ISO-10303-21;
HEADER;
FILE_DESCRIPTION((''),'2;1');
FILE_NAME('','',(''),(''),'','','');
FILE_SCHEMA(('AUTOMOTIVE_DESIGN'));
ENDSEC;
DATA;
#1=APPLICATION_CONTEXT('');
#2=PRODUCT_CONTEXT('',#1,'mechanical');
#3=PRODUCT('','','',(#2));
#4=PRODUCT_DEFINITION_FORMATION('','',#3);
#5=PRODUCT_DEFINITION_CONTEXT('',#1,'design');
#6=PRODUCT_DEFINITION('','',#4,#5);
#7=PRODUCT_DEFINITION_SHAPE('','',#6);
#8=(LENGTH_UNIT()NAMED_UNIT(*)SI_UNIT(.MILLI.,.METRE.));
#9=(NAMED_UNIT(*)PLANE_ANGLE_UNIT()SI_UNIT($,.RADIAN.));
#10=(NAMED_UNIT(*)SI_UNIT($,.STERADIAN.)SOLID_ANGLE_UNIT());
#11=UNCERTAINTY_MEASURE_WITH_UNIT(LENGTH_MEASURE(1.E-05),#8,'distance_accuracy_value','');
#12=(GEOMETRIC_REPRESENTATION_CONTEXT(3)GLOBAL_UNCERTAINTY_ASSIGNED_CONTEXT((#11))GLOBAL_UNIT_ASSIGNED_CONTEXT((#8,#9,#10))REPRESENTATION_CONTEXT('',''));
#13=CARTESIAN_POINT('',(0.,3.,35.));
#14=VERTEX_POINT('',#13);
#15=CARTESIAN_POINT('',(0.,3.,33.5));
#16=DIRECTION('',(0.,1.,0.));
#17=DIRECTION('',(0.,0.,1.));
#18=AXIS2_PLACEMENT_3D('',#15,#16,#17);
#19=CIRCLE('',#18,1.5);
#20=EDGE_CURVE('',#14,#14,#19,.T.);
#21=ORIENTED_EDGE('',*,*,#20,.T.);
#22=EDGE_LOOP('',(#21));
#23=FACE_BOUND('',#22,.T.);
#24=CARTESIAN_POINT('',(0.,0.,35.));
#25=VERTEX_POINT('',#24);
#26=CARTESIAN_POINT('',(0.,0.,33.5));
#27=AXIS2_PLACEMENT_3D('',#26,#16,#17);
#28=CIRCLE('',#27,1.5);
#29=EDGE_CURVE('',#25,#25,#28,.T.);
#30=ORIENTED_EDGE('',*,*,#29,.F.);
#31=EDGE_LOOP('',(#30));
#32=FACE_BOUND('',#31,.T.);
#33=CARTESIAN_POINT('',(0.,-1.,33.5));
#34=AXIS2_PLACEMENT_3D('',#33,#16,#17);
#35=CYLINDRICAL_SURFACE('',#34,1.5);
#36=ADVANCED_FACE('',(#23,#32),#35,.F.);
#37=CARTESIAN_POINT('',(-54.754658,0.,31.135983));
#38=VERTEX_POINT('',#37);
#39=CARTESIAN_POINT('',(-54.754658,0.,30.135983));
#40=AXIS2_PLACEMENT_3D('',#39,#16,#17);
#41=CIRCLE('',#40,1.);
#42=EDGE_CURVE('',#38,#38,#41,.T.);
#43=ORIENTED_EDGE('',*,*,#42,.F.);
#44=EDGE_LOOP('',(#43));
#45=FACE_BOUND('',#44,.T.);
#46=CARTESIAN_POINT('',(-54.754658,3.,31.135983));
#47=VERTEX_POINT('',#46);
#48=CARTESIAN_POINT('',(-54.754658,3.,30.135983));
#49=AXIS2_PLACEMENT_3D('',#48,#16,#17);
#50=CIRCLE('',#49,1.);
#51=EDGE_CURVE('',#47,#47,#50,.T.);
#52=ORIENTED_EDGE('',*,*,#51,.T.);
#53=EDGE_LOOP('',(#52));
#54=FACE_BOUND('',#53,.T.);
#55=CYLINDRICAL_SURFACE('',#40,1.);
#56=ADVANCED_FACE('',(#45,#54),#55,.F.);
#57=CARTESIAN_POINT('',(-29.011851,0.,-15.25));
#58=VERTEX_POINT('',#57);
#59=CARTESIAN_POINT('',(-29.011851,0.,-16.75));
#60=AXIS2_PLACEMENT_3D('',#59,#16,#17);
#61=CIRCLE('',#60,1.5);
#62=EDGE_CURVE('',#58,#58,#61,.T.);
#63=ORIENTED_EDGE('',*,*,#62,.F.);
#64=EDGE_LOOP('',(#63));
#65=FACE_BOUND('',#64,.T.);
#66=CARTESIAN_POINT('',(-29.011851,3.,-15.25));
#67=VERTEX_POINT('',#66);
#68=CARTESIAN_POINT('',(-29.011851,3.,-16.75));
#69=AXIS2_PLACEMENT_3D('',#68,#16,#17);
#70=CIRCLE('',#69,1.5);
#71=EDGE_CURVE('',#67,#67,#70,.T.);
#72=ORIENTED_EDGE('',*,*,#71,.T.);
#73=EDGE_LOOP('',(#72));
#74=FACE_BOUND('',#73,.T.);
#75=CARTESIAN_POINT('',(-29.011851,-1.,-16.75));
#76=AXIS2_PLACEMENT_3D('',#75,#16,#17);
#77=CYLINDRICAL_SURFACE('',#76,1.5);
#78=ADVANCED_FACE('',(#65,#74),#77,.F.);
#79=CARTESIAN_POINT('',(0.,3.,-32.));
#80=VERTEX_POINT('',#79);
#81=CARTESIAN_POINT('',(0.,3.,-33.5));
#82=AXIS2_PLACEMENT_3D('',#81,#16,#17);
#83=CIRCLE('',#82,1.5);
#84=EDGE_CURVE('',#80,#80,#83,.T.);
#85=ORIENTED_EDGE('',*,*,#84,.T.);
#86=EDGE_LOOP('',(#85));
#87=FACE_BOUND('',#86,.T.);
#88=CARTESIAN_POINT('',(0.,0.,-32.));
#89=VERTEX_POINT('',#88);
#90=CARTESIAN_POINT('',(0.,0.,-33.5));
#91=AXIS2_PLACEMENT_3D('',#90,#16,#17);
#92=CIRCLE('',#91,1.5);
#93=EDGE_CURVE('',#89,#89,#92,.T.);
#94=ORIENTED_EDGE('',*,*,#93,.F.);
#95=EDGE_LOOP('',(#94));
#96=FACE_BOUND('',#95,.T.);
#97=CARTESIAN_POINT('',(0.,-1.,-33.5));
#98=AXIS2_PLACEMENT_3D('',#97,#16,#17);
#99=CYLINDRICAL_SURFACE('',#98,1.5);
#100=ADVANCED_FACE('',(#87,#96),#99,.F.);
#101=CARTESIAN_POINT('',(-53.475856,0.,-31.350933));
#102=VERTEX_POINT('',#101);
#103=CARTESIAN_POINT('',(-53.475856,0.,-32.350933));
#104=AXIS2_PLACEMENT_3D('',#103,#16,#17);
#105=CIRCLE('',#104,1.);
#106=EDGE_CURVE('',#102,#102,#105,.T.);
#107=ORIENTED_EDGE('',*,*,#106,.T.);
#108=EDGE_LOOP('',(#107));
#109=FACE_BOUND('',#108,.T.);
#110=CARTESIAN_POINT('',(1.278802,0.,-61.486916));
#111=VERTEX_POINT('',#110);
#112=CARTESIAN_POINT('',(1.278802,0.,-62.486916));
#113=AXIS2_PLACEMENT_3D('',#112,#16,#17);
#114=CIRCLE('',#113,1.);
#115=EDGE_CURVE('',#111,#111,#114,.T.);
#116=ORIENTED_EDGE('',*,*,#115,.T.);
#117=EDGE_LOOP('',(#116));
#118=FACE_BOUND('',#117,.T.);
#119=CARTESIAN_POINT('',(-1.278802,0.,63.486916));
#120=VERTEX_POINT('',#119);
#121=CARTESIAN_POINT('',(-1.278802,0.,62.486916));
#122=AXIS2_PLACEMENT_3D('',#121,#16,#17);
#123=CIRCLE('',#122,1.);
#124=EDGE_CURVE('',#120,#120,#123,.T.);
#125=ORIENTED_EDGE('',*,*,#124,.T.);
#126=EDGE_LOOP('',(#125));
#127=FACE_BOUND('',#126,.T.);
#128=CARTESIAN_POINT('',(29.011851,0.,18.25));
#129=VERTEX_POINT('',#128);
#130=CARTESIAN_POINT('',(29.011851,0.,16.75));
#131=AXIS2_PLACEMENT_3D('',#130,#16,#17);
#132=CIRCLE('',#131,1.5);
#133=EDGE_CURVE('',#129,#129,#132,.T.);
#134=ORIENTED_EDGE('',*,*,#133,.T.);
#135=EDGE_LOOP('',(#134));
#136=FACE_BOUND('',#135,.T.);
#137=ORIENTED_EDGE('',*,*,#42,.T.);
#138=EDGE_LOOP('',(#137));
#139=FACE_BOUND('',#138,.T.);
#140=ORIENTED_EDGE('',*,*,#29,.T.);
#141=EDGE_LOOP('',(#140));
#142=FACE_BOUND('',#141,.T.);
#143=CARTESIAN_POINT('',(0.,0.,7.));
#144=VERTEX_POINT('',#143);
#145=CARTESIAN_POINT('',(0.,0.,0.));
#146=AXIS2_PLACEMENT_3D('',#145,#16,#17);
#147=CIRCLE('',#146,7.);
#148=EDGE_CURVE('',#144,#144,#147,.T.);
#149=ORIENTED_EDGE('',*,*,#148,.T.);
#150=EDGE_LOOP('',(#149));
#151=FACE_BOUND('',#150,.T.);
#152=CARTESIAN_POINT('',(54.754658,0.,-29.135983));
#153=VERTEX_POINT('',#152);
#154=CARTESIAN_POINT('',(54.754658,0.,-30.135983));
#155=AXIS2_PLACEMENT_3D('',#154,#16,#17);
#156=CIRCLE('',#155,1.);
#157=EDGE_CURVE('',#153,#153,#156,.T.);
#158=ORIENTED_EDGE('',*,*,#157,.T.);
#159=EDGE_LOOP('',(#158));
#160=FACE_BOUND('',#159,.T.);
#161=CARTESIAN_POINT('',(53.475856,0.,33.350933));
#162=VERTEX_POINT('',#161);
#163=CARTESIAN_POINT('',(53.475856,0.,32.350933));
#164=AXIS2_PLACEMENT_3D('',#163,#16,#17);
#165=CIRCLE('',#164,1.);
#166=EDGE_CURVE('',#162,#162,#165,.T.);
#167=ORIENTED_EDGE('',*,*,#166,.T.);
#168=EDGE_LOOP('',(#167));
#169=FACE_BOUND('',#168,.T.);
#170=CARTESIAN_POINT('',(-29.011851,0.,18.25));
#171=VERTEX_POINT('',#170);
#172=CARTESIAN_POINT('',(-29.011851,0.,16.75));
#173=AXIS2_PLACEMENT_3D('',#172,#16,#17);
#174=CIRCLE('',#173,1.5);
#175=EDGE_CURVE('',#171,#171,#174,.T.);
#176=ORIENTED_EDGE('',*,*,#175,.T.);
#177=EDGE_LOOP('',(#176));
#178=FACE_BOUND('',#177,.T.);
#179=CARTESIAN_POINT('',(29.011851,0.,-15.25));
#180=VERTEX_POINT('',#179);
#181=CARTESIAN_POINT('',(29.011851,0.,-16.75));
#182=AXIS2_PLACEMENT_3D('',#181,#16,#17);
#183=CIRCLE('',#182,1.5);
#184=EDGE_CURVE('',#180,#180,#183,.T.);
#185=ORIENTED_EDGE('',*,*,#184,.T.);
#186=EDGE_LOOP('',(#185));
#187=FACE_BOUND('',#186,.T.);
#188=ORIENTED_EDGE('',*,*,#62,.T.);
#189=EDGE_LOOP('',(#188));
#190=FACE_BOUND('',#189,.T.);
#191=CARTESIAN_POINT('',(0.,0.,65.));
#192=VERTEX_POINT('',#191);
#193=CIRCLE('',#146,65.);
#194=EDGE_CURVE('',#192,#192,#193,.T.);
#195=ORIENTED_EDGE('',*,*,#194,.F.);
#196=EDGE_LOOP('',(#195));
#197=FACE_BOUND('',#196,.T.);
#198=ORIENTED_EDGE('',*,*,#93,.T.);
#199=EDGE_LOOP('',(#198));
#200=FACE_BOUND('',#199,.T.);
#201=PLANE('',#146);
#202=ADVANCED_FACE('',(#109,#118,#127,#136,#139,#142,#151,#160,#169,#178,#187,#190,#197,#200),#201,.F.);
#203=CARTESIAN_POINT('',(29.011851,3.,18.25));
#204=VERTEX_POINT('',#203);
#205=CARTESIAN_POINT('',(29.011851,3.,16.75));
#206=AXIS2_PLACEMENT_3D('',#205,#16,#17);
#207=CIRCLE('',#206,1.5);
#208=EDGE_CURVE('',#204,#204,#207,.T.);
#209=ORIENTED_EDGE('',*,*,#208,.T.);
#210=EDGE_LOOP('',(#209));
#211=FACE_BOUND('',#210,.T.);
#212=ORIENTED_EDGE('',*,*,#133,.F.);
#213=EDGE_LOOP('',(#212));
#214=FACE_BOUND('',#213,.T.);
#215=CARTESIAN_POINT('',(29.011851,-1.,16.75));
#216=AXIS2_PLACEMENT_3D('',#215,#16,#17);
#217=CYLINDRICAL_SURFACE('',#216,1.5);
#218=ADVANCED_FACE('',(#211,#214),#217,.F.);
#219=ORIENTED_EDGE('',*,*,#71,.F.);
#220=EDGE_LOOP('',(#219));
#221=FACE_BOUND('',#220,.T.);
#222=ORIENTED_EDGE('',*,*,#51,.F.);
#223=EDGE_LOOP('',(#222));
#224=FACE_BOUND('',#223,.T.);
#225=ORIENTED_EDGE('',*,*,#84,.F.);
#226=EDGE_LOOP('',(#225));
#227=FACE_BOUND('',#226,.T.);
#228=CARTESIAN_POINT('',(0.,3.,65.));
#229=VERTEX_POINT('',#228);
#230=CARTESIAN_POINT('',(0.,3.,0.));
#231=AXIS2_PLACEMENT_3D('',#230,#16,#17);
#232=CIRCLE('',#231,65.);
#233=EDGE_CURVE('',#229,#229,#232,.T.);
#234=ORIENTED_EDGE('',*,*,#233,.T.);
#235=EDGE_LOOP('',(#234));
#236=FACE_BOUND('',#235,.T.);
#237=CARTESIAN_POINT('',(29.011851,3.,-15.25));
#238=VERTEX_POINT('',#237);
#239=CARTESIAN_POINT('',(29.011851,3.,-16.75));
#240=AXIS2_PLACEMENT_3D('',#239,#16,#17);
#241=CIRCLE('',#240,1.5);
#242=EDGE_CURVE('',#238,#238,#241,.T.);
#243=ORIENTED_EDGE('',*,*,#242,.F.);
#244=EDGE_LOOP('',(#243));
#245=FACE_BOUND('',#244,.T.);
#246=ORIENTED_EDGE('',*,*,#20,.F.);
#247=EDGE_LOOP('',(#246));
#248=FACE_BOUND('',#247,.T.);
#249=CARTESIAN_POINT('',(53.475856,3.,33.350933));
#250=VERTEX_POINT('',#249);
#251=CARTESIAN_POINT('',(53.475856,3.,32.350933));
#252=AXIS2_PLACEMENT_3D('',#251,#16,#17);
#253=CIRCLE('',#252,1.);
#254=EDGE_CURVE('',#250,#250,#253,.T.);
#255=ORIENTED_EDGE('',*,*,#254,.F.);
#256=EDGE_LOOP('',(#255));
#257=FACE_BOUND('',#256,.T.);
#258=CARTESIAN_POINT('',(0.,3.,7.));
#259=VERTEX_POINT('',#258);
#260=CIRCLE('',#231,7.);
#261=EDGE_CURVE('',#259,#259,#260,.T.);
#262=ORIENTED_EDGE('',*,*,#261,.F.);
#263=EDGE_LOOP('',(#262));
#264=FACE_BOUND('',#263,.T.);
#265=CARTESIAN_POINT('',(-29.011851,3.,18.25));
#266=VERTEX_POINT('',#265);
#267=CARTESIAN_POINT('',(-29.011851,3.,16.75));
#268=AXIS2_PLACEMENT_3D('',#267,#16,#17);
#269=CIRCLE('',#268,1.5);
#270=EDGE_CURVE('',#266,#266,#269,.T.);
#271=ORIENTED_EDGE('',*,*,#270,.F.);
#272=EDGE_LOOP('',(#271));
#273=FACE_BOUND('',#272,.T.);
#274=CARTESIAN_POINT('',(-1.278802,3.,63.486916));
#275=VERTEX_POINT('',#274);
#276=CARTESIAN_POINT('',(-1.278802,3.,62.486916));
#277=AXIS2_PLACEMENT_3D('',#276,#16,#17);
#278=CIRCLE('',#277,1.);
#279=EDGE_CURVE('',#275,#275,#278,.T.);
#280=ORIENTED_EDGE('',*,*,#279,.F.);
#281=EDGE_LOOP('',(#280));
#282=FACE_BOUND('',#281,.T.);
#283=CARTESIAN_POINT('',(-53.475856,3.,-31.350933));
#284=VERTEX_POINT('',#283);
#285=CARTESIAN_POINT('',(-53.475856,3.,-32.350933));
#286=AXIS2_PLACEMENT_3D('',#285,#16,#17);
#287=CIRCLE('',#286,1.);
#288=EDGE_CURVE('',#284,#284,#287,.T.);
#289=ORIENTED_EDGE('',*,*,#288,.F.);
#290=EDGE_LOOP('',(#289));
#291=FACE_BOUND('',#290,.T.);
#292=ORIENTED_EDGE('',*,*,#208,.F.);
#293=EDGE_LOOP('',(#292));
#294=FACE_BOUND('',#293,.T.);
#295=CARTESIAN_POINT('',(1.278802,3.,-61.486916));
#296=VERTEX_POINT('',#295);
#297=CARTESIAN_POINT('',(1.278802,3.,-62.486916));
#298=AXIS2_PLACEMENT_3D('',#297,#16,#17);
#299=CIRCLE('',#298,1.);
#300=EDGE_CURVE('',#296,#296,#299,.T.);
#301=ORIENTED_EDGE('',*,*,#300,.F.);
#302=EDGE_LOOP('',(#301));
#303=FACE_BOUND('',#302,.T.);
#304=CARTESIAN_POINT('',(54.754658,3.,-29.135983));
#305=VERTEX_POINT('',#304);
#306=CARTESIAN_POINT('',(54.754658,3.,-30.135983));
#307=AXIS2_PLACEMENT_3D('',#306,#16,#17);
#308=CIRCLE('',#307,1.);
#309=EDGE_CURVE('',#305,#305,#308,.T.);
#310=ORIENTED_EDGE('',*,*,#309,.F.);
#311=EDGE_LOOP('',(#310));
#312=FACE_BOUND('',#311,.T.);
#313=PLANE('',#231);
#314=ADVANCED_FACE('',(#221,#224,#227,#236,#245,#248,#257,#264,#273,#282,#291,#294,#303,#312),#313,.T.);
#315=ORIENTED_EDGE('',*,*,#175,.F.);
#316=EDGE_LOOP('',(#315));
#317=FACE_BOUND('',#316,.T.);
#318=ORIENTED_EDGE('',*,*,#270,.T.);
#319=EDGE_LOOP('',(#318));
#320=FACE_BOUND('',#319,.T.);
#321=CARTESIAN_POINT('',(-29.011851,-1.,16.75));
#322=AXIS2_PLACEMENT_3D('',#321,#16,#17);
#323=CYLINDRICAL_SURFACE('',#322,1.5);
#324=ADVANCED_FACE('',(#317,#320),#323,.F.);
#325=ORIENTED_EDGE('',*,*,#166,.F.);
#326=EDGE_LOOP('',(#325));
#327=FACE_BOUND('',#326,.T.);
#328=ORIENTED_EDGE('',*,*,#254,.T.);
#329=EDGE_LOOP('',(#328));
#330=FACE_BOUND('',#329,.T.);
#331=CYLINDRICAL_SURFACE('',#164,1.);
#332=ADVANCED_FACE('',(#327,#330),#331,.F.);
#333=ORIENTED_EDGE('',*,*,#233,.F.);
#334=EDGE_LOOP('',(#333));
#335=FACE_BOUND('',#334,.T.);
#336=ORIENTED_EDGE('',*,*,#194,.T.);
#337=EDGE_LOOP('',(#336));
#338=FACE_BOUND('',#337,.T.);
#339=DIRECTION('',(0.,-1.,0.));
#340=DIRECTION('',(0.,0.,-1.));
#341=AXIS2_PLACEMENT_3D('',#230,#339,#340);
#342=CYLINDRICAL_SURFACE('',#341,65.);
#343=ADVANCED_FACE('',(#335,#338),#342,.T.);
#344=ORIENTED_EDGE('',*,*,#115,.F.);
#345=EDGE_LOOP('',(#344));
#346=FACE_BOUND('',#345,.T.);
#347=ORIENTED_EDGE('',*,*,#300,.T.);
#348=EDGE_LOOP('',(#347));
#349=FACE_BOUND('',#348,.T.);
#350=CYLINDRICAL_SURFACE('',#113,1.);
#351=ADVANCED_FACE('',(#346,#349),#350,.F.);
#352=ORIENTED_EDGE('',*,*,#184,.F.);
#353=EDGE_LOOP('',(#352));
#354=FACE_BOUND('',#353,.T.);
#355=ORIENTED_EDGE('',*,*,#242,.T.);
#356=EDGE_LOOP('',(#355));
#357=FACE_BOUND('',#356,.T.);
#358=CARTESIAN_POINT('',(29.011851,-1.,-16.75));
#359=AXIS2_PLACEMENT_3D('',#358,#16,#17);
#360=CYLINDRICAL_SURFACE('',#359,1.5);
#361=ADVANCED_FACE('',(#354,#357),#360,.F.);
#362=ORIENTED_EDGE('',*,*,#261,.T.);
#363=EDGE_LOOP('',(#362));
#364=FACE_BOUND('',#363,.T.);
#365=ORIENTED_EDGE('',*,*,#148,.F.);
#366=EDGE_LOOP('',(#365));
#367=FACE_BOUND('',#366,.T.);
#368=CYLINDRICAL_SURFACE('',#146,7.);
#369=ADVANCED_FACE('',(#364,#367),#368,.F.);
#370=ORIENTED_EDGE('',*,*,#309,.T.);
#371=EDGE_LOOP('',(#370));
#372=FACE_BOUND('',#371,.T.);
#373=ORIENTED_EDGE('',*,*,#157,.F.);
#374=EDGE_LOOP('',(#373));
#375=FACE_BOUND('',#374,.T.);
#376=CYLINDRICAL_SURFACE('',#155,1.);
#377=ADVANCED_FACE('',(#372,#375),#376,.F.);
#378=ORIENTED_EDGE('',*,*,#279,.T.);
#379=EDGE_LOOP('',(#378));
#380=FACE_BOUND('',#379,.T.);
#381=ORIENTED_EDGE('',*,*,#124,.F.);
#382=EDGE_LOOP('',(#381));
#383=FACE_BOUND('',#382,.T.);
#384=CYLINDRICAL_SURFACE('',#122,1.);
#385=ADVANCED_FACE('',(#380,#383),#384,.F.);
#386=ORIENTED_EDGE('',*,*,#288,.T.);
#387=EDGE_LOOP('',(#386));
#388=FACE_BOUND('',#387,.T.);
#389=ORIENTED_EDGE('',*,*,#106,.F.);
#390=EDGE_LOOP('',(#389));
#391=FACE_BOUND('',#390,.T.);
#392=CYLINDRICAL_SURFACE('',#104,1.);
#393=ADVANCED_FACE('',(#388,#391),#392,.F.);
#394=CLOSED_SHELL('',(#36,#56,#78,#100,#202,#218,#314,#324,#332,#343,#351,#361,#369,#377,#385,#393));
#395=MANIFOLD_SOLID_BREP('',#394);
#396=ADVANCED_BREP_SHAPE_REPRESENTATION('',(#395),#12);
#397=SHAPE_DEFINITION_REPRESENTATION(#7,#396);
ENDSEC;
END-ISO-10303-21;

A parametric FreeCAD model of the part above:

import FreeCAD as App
import Part
import Sketcher
from FreeCAD import Vector
Q = App.Units.Quantity

doc = App.newDocument("Part")
body = doc.addObject("PartDesign::Body", "Body")

# Sketch on XZ plane
sketch1 = doc.addObject("Sketcher::SketchObject", "Sketch")
body.addObject(sketch1)
sketch1.AttachmentSupport = (doc.XZ_Plane, [""])
sketch1.MapMode = "FlatFace"
sketch1.addGeometry(Part.Circle(Vector(0, 0, 0), Vector(0, 0, 1), 65), False)
sketch1.addConstraint(Sketcher.Constraint("Coincident", 0, 3, -1, 1))
sketch1.addConstraint(Sketcher.Constraint("Diameter", 0, Q("130 mm")))
pad1 = doc.addObject("PartDesign::Pad", "Pad")
body.addObject(pad1)
pad1.Profile = sketch1
pad1.Length = 3
pad1.Reversed = True

# Sketch on XZ plane
sketch2 = doc.addObject("Sketcher::SketchObject", "Sketch001")
body.addObject(sketch2)
sketch2.AttachmentSupport = (doc.XZ_Plane, [""])
sketch2.MapMode = "FlatFace"
sketch2.AttachmentOffset = App.Placement(Vector(0, 0, -3), App.Rotation())
sketch2.addGeometry(Part.Circle(Vector(-53.5, -32.4, 0), Vector(0, 0, 1), 1), False)
sketch2.addGeometry(Part.Circle(Vector(-54.8, 30.1, 0), Vector(0, 0, 1), 1), False)
sketch2.addGeometry(Part.Circle(Vector(-1.3, 62.5, 0), Vector(0, 0, 1), 1), False)
sketch2.addGeometry(Part.Circle(Vector(53.5, 32.4, 0), Vector(0, 0, 1), 1), False)
sketch2.addGeometry(Part.Circle(Vector(54.8, -30.1, 0), Vector(0, 0, 1), 1), False)
sketch2.addGeometry(Part.Circle(Vector(1.3, -62.5, 0), Vector(0, 0, 1), 1), False)
sketch2.addConstraint(Sketcher.Constraint("Equal", 0, 1))
sketch2.addConstraint(Sketcher.Constraint("Equal", 1, 2))
sketch2.addConstraint(Sketcher.Constraint("Equal", 2, 3))
sketch2.addConstraint(Sketcher.Constraint("Equal", 3, 4))
sketch2.addConstraint(Sketcher.Constraint("Equal", 4, 5))
sketch2.addConstraint(Sketcher.Constraint("Symmetric", 0, 3, 3, 3, -1, 1))
sketch2.addConstraint(Sketcher.Constraint("Symmetric", 1, 3, 4, 3, -1, 1))
sketch2.addConstraint(Sketcher.Constraint("Symmetric", 2, 3, 5, 3, -1, 1))
sketch2.addConstraint(Sketcher.Constraint("Diameter", 0, Q("2 mm")))
sketch2.addConstraint(Sketcher.Constraint("DistanceY", 4, 3, 2, 3, Q("92.622899 mm")))
sketch2.addConstraint(Sketcher.Constraint("DistanceY", 0, 3, 2, 3, Q("94.837849 mm")))
sketch2.addConstraint(Sketcher.Constraint("DistanceX", 0, 3, 3, 3, Q("106.951711 mm")))
sketch2.addConstraint(Sketcher.Constraint("DistanceX", 2, 3, 4, 3, Q("56.03346 mm")))
sketch2.addConstraint(Sketcher.Constraint("DistanceY", 5, 3, 2, 3, Q("124.973832 mm")))
sketch2.addConstraint(Sketcher.Constraint("DistanceX", 1, 3, -1, 1, Q("54.754658 mm")))
pocket1 = doc.addObject("PartDesign::Pocket", "Pocket")
body.addObject(pocket1)
pocket1.Profile = sketch2
pocket1.Length = 3
pocket1.Reversed = True

# Sketch on XZ plane
sketch3 = doc.addObject("Sketcher::SketchObject", "Sketch002")
body.addObject(sketch3)
sketch3.AttachmentSupport = (doc.XZ_Plane, [""])
sketch3.MapMode = "FlatFace"
sketch3.AttachmentOffset = App.Placement(Vector(0, 0, -3), App.Rotation())
sketch3.addGeometry(Part.Circle(Vector(0, 0, 0), Vector(0, 0, 1), 7), False)
sketch3.addConstraint(Sketcher.Constraint("Coincident", 0, 3, -1, 1))
sketch3.addConstraint(Sketcher.Constraint("Diameter", 0, Q("14 mm")))
pocket2 = doc.addObject("PartDesign::Pocket", "Pocket001")
body.addObject(pocket2)
pocket2.Profile = sketch3
pocket2.Length = 3
pocket2.Reversed = True

# Sketch on XZ plane
sketch4 = doc.addObject("Sketcher::SketchObject", "Sketch003")
body.addObject(sketch4)
sketch4.AttachmentSupport = (doc.XZ_Plane, [""])
sketch4.MapMode = "FlatFace"
sketch4.AttachmentOffset = App.Placement(Vector(0, 0, -3), App.Rotation())
sketch4.addGeometry(Part.Circle(Vector(0, -33.5, 0), Vector(0, 0, 1), 1.5), False)
sketch4.addGeometry(Part.Circle(Vector(29, -16.8, 0), Vector(0, 0, 1), 1.5), False)
sketch4.addGeometry(Part.Circle(Vector(29, 16.8, 0), Vector(0, 0, 1), 1.5), False)
sketch4.addGeometry(Part.Circle(Vector(0, 33.5, 0), Vector(0, 0, 1), 1.5), False)
sketch4.addGeometry(Part.Circle(Vector(-29, 16.8, 0), Vector(0, 0, 1), 1.5), False)
sketch4.addGeometry(Part.Circle(Vector(-29, -16.8, 0), Vector(0, 0, 1), 1.5), False)
sketch4.addConstraint(Sketcher.Constraint("Equal", 0, 1))
sketch4.addConstraint(Sketcher.Constraint("Equal", 1, 2))
sketch4.addConstraint(Sketcher.Constraint("Equal", 2, 3))
sketch4.addConstraint(Sketcher.Constraint("Equal", 3, 4))
sketch4.addConstraint(Sketcher.Constraint("Equal", 4, 5))
sketch4.addConstraint(Sketcher.Constraint("Symmetric", 0, 3, 3, 3, -1, 1))
sketch4.addConstraint(Sketcher.Constraint("Symmetric", 1, 3, 4, 3, -1, 1))
sketch4.addConstraint(Sketcher.Constraint("Symmetric", 2, 3, 5, 3, -1, 1))
sketch4.addConstraint(Sketcher.Constraint("Symmetric", 2, 3, 4, 3, -2))
sketch4.addConstraint(Sketcher.Constraint("PointOnObject", 0, 3, -2))
sketch4.addConstraint(Sketcher.Constraint("Diameter", 0, Q("3 mm")))
sketch4.addConstraint(Sketcher.Constraint("DistanceY", 0, 3, 3, 3, Q("67 mm")))
sketch4.addConstraint(Sketcher.Constraint("DistanceY", 1, 3, 2, 3, Q("33.5 mm")))
sketch4.addConstraint(Sketcher.Constraint("DistanceX", -1, 1, 1, 3, Q("29.011851 mm")))
pocket3 = doc.addObject("PartDesign::Pocket", "Pocket002")
body.addObject(pocket3)
pocket3.Profile = sketch4
pocket3.Length = 4
pocket3.Reversed = True

doc.recompute()
